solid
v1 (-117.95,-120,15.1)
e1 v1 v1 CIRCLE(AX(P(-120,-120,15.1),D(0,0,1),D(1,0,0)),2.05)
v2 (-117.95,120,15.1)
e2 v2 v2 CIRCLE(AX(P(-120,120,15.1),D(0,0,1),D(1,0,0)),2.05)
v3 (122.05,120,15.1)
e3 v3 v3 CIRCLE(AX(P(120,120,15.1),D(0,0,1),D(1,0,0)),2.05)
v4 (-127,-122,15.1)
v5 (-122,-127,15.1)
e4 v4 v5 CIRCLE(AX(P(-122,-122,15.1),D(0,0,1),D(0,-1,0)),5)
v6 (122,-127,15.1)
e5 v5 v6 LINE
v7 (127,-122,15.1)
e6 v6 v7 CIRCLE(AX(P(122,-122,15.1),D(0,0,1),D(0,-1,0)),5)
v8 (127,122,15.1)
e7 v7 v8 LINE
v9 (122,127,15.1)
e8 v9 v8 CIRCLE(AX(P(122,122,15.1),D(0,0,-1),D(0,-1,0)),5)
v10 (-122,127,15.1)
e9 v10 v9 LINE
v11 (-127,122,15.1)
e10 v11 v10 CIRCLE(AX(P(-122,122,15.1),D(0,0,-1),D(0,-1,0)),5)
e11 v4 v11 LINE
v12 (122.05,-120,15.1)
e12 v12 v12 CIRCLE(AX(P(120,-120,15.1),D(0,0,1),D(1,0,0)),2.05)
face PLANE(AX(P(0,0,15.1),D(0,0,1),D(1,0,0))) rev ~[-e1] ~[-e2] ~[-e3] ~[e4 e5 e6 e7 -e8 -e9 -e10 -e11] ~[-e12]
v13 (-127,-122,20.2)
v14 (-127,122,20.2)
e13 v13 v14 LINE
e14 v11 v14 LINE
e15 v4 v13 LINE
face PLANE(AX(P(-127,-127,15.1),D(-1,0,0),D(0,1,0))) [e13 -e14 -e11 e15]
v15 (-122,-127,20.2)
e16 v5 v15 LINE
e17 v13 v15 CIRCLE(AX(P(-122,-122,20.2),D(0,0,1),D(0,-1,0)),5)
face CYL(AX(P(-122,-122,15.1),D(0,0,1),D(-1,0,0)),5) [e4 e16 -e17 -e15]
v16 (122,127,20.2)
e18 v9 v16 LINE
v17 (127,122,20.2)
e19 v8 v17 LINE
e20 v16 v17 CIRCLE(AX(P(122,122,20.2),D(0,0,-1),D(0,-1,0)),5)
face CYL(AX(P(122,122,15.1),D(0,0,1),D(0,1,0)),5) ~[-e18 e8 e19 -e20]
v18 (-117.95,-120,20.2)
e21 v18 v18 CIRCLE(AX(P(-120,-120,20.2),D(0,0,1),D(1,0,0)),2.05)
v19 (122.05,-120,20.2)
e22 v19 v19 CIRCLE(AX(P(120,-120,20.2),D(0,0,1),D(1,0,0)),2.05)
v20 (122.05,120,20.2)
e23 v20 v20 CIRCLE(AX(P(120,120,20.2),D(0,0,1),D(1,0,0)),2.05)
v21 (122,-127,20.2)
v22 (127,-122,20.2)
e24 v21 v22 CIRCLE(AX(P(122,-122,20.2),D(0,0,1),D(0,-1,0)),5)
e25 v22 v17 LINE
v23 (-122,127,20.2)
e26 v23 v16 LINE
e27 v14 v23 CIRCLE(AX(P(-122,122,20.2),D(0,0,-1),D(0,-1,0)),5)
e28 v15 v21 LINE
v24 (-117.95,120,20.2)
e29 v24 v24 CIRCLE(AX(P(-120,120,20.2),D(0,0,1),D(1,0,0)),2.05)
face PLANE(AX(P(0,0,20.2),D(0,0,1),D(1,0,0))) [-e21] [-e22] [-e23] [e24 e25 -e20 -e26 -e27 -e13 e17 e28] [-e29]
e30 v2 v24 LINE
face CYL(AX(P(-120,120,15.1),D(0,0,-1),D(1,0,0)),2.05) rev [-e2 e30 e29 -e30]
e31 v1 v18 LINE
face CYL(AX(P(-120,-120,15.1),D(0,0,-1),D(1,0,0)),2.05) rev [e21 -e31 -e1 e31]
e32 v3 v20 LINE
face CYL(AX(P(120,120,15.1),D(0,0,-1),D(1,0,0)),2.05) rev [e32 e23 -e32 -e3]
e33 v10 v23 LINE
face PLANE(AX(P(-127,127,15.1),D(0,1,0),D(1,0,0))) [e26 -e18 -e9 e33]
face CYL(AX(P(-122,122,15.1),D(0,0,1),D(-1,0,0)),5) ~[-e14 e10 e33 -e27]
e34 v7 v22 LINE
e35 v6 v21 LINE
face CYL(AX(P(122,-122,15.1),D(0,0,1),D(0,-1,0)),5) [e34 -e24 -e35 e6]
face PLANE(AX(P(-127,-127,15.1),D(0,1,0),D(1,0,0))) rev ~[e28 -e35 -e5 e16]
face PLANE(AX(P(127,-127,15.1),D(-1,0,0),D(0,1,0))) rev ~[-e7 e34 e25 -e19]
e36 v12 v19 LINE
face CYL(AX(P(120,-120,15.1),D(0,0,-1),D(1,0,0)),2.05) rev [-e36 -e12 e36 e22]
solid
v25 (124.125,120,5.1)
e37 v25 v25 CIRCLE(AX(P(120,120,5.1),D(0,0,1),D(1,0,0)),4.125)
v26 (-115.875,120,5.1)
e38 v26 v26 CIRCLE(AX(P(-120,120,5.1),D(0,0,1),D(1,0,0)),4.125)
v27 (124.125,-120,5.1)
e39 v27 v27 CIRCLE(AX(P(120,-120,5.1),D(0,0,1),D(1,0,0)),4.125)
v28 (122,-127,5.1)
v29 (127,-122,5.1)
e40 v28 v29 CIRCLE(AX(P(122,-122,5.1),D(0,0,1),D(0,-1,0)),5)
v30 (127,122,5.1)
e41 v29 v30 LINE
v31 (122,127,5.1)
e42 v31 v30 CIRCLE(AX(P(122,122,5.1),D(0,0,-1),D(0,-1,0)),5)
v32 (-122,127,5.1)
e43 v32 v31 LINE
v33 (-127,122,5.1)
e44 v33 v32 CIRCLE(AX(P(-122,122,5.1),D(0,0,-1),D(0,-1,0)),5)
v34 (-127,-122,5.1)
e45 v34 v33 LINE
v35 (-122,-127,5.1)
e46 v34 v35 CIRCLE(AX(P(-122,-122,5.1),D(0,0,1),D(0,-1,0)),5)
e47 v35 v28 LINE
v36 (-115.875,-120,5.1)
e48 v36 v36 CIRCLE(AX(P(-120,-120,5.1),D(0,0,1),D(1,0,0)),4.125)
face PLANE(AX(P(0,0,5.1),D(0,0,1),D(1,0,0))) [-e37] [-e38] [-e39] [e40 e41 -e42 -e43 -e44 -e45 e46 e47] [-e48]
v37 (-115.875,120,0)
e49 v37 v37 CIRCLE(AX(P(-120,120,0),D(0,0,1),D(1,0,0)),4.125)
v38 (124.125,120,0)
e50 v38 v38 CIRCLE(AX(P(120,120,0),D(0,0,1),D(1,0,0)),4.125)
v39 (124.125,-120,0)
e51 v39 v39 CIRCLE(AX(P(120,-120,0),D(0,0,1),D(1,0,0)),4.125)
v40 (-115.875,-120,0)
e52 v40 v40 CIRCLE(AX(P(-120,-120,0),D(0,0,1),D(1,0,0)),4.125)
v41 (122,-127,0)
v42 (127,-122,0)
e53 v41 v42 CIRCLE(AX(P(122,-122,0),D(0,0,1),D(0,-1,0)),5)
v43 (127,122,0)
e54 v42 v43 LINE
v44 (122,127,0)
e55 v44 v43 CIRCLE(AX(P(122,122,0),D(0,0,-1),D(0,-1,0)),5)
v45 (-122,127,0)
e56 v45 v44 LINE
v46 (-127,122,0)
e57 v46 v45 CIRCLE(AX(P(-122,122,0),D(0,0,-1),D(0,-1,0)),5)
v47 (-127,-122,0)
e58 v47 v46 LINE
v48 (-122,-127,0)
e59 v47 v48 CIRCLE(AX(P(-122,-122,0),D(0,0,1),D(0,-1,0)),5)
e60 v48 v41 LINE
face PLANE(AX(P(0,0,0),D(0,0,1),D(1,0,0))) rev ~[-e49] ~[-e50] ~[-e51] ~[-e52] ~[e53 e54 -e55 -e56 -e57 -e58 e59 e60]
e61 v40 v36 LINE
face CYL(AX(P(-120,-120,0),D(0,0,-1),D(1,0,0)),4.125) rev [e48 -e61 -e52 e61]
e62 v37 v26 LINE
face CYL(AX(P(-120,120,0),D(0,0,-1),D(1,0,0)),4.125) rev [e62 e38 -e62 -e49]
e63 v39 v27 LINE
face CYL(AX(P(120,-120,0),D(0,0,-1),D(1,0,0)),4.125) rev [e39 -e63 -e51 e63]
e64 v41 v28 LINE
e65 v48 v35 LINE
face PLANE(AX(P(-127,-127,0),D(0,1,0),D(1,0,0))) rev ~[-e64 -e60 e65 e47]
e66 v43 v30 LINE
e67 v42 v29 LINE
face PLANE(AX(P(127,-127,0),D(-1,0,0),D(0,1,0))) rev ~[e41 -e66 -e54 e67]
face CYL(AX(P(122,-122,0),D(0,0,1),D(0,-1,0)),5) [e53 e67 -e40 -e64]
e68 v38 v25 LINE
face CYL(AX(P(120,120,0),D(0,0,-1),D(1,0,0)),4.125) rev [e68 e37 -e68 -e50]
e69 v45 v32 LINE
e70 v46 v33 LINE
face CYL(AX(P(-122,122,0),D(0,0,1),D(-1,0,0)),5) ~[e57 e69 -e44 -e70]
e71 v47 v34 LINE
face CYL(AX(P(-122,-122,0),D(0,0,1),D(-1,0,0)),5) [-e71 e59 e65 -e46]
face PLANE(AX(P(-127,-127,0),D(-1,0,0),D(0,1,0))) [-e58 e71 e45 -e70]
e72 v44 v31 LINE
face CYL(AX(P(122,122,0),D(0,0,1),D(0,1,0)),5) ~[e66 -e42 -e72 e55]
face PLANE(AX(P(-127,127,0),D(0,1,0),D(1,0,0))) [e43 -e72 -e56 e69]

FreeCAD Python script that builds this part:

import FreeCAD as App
import Part
import Sketcher
from FreeCAD import Vector
Q = App.Units.Quantity


def edges_at(feature, points):
    """Names of the edges that pass closest to the given points."""
    edges = feature.Shape.Edges
    near = lambda p: min(range(len(edges)), key=lambda i: edges[i].distToShape(Part.Vertex(*p))[0])
    return sorted({f"Edge{near(p) + 1}" for p in points})


def add_polygon(sketch, points):
    """Adds a closed chain of lines whose ends are joined by coincident constraints."""
    first, n = sketch.GeometryCount, len(points)
    for a, b in zip(points, points[1:] + points[:1]):
        sketch.addGeometry(Part.LineSegment(App.Vector(*a, 0), App.Vector(*b, 0)), False)
    for i in range(n):
        sketch.addConstraint(Sketcher.Constraint("Coincident", first + i, 2, first + (i + 1) % n, 1))

doc = App.newDocument("Part")
body = doc.addObject("PartDesign::Body", "Body")

# Sketch on XY plane
sketch1 = doc.addObject("Sketcher::SketchObject", "Sketch")
body.addObject(sketch1)
sketch1.AttachmentSupport = (doc.XY_Plane, [""])
sketch1.MapMode = "FlatFace"
add_polygon(sketch1, [(-127, 127), (-127, -127), (127, -127), (127, 127)])  # lines 0-3
sketch1.addGeometry(Part.Circle(Vector(-120, -120, 0), Vector(0, 0, 1), 4.125), False)  # 4
sketch1.addGeometry(Part.Circle(Vector(120, -120, 0), Vector(0, 0, 1), 4.125), False)  # 5
sketch1.addGeometry(Part.Circle(Vector(-120, 120, 0), Vector(0, 0, 1), 4.125), False)  # 6
sketch1.addGeometry(Part.Circle(Vector(120, 120, 0), Vector(0, 0, 1), 4.125), False)  # 7
sketch1.addConstraint([
    Sketcher.Constraint("Vertical", 0),
    Sketcher.Constraint("Horizontal", 1),
    Sketcher.Constraint("Vertical", 2),
    Sketcher.Constraint("Horizontal", 3),
    Sketcher.Constraint("Equal", 4, 5),
    Sketcher.Constraint("Equal", 5, 6),
    Sketcher.Constraint("Equal", 6, 7),
    Sketcher.Constraint("Symmetric", 5, 3, 6, 3, -1, 1),
    Sketcher.Constraint("Symmetric", 4, 3, 7, 3, -1, 1),
    Sketcher.Constraint("Symmetric", 0, 2, 2, 2, -1, 1),
    Sketcher.Constraint("Symmetric", 4, 3, 5, 3, -2),
    Sketcher.Constraint("Equal", 3, 0),
    Sketcher.Constraint("Diameter", 4, Q("8.25 mm")),
    Sketcher.Constraint("DistanceX", 1, 1, 1, 2, Q("254 mm")),
    Sketcher.Constraint("DistanceX", 4, 3, -1, 1, Q("120 mm")),
    Sketcher.Constraint("DistanceY", 4, 3, -1, 1, Q("120 mm")),
])
pad1 = doc.addObject("PartDesign::Pad", "Pad")
body.addObject(pad1)
pad1.Profile = sketch1
pad1.Length = 5.1
doc.recompute()

fillet = doc.addObject("PartDesign::Fillet", "Fillet")
body.addObject(fillet)
fillet.Base = (pad1, edges_at(pad1, [
    (-127, 127, 2.55),
    (127, 127, 2.55),
    (127, -127, 2.55),
    (-127, -127, 2.55),
]))
fillet.Radius = 5
body2 = doc.addObject("PartDesign::Body", "Body001")

# Sketch on XY plane
sketch2 = doc.addObject("Sketcher::SketchObject", "Sketch001")
body2.addObject(sketch2)
sketch2.AttachmentSupport = (doc.getObject("XY_Plane001"), [""])
sketch2.MapMode = "FlatFace"
sketch2.AttachmentOffset = App.Placement(Vector(0, 0, 15.1), App.Rotation())
add_polygon(sketch2, [(-127, 127), (-127, -127), (127, -127), (127, 127)])  # lines 0-3
sketch2.addGeometry(Part.Circle(Vector(-120, -120, 0), Vector(0, 0, 1), 2.05), False)  # 4
sketch2.addGeometry(Part.Circle(Vector(120, -120, 0), Vector(0, 0, 1), 2.05), False)  # 5
sketch2.addGeometry(Part.Circle(Vector(-120, 120, 0), Vector(0, 0, 1), 2.05), False)  # 6
sketch2.addGeometry(Part.Circle(Vector(120, 120, 0), Vector(0, 0, 1), 2.05), False)  # 7
sketch2.addConstraint([
    Sketcher.Constraint("Vertical", 0),
    Sketcher.Constraint("Horizontal", 1),
    Sketcher.Constraint("Vertical", 2),
    Sketcher.Constraint("Horizontal", 3),
    Sketcher.Constraint("Equal", 4, 5),
    Sketcher.Constraint("Equal", 5, 6),
    Sketcher.Constraint("Equal", 6, 7),
    Sketcher.Constraint("Symmetric", 5, 3, 6, 3, -1, 1),
    Sketcher.Constraint("Symmetric", 4, 3, 7, 3, -1, 1),
    Sketcher.Constraint("Symmetric", 0, 2, 2, 2, -1, 1),
    Sketcher.Constraint("Symmetric", 4, 3, 5, 3, -2),
    Sketcher.Constraint("Equal", 3, 0),
    Sketcher.Constraint("Diameter", 4, Q("4.1 mm")),
    Sketcher.Constraint("DistanceX", 1, 1, 1, 2, Q("254 mm")),
    Sketcher.Constraint("DistanceX", 4, 3, -1, 1, Q("120 mm")),
    Sketcher.Constraint("DistanceY", 4, 3, -1, 1, Q("120 mm")),
])
pad2 = doc.addObject("PartDesign::Pad", "Pad001")
body2.addObject(pad2)
pad2.Profile = sketch2
pad2.Length = 5.1
doc.recompute()

fillet2 = doc.addObject("PartDesign::Fillet", "Fillet001")
body2.addObject(fillet2)
fillet2.Base = (pad2, edges_at(pad2, [
    (-127, -127, 17.65),
    (127, -127, 17.65),
    (127, 127, 17.65),
    (-127, 127, 17.65),
]))
fillet2.Radius = 5

doc.recompute()
